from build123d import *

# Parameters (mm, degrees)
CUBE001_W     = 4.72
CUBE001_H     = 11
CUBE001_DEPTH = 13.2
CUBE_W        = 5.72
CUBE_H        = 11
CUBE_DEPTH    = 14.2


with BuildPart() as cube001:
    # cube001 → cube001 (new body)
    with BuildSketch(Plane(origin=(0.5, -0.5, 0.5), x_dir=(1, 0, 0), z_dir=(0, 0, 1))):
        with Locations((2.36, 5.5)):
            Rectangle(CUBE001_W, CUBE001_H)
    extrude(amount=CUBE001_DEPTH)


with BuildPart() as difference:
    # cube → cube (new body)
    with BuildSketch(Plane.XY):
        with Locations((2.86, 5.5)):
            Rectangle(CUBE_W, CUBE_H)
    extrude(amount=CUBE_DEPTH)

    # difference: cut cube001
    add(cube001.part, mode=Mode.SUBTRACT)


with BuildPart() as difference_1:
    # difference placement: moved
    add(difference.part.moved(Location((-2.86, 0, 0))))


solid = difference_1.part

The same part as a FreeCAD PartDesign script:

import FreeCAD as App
import Part
import Sketcher

V = App.Vector

doc = App.newDocument("Part")
body = doc.addObject("PartDesign::Body", "Body")

sketch1 = doc.addObject("Sketcher::SketchObject", "Sketch")
body.addObject(sketch1)
sketch1.AttachmentSupport = (doc.XY_Plane, [""])
sketch1.MapMode = "FlatFace"
sketch1.AttachmentOffset = App.Placement(V(0, 0, 0.5), App.Rotation())
sketch1.addGeometry(Part.LineSegment(V(0.5, 10.5, 0), V(0.5, -0.5, 0)), False)
sketch1.addGeometry(Part.LineSegment(V(0.5, -0.5, 0), V(5.2, -0.5, 0)), False)
sketch1.addGeometry(Part.LineSegment(V(5.2, -0.5, 0), V(5.2, 10.5, 0)), False)
sketch1.addGeometry(Part.LineSegment(V(5.2, 10.5, 0), V(0.5, 10.5, 0)), False)
sketch1.addConstraint(Sketcher.Constraint("Coincident", 0, 2, 1, 1))
sketch1.addConstraint(Sketcher.Constraint("Coincident", 1, 2, 2, 1))
sketch1.addConstraint(Sketcher.Constraint("Coincident", 2, 2, 3, 1))
sketch1.addConstraint(Sketcher.Constraint("Coincident", 3, 2, 0, 1))
sketch1.addConstraint(Sketcher.Constraint("Vertical", 0))
sketch1.addConstraint(Sketcher.Constraint("Horizontal", 1))
sketch1.addConstraint(Sketcher.Constraint("Vertical", 2))
sketch1.addConstraint(Sketcher.Constraint("Horizontal", 3))
sketch1.addConstraint(Sketcher.Constraint("DistanceY", 0, 2, 0, 1, 11.0))
sketch1.addConstraint(Sketcher.Constraint("DistanceX", 1, 1, 1, 2, 4.72))
sketch1.addConstraint(Sketcher.Constraint("DistanceX", -1, 1, 0, 2, 0.5))
sketch1.addConstraint(Sketcher.Constraint("DistanceY", 0, 2, -1, 1, 0.5))
pad1 = doc.addObject("PartDesign::Pad", "Pad")
body.addObject(pad1)
pad1.Profile = sketch1
pad1.Length = 13.2
body2 = doc.addObject("PartDesign::Body", "Body001")

sketch2 = doc.addObject("Sketcher::SketchObject", "Sketch001")
body2.addObject(sketch2)
sketch2.AttachmentSupport = (doc.getObject("XY_Plane001"), [""])
sketch2.MapMode = "FlatFace"
sketch2.addGeometry(Part.LineSegment(V(0, 11, 0), V(0, 0, 0)), False)
sketch2.addGeometry(Part.LineSegment(V(0, 0, 0), V(6, 0, 0)), False)
sketch2.addGeometry(Part.LineSegment(V(6, 0, 0), V(6, 11, 0)), False)
sketch2.addGeometry(Part.LineSegment(V(6, 11, 0), V(0, 11, 0)), False)
sketch2.addConstraint(Sketcher.Constraint("Coincident", 0, 2, 1, 1))
sketch2.addConstraint(Sketcher.Constraint("Coincident", 1, 2, 2, 1))
sketch2.addConstraint(Sketcher.Constraint("Coincident", 2, 2, 3, 1))
sketch2.addConstraint(Sketcher.Constraint("Coincident", 3, 2, 0, 1))
sketch2.addConstraint(Sketcher.Constraint("Vertical", 0))
sketch2.addConstraint(Sketcher.Constraint("Horizontal", 1))
sketch2.addConstraint(Sketcher.Constraint("Vertical", 2))
sketch2.addConstraint(Sketcher.Constraint("Horizontal", 3))
sketch2.addConstraint(Sketcher.Constraint("Coincident", 0, 2, -1, 1))
sketch2.addConstraint(Sketcher.Constraint("DistanceY", 0, 2, 0, 1, 11.0))
sketch2.addConstraint(Sketcher.Constraint("DistanceX", 1, 1, 1, 2, 5.72))
pad2 = doc.addObject("PartDesign::Pad", "Pad001")
body2.addObject(pad2)
pad2.Profile = sketch2
pad2.Length = 14.2
doc.recompute()

boolean = doc.addObject("PartDesign::Boolean", "Boolean")
body2.addObject(boolean)
boolean.Type = "Cut"
boolean.addObjects([body])
body3 = doc.addObject("PartDesign::Body", "Body002")
doc.recompute()

body2.Placement = App.Placement(V(-2.86, 0, 0), App.Rotation(V(0, 0, 1), 0))
boolean2 = doc.addObject("PartDesign::Boolean", "Boolean001")
body3.addObject(boolean2)
boolean2.Type = "Fuse"
boolean2.addObjects([body2])

doc.recompute()
